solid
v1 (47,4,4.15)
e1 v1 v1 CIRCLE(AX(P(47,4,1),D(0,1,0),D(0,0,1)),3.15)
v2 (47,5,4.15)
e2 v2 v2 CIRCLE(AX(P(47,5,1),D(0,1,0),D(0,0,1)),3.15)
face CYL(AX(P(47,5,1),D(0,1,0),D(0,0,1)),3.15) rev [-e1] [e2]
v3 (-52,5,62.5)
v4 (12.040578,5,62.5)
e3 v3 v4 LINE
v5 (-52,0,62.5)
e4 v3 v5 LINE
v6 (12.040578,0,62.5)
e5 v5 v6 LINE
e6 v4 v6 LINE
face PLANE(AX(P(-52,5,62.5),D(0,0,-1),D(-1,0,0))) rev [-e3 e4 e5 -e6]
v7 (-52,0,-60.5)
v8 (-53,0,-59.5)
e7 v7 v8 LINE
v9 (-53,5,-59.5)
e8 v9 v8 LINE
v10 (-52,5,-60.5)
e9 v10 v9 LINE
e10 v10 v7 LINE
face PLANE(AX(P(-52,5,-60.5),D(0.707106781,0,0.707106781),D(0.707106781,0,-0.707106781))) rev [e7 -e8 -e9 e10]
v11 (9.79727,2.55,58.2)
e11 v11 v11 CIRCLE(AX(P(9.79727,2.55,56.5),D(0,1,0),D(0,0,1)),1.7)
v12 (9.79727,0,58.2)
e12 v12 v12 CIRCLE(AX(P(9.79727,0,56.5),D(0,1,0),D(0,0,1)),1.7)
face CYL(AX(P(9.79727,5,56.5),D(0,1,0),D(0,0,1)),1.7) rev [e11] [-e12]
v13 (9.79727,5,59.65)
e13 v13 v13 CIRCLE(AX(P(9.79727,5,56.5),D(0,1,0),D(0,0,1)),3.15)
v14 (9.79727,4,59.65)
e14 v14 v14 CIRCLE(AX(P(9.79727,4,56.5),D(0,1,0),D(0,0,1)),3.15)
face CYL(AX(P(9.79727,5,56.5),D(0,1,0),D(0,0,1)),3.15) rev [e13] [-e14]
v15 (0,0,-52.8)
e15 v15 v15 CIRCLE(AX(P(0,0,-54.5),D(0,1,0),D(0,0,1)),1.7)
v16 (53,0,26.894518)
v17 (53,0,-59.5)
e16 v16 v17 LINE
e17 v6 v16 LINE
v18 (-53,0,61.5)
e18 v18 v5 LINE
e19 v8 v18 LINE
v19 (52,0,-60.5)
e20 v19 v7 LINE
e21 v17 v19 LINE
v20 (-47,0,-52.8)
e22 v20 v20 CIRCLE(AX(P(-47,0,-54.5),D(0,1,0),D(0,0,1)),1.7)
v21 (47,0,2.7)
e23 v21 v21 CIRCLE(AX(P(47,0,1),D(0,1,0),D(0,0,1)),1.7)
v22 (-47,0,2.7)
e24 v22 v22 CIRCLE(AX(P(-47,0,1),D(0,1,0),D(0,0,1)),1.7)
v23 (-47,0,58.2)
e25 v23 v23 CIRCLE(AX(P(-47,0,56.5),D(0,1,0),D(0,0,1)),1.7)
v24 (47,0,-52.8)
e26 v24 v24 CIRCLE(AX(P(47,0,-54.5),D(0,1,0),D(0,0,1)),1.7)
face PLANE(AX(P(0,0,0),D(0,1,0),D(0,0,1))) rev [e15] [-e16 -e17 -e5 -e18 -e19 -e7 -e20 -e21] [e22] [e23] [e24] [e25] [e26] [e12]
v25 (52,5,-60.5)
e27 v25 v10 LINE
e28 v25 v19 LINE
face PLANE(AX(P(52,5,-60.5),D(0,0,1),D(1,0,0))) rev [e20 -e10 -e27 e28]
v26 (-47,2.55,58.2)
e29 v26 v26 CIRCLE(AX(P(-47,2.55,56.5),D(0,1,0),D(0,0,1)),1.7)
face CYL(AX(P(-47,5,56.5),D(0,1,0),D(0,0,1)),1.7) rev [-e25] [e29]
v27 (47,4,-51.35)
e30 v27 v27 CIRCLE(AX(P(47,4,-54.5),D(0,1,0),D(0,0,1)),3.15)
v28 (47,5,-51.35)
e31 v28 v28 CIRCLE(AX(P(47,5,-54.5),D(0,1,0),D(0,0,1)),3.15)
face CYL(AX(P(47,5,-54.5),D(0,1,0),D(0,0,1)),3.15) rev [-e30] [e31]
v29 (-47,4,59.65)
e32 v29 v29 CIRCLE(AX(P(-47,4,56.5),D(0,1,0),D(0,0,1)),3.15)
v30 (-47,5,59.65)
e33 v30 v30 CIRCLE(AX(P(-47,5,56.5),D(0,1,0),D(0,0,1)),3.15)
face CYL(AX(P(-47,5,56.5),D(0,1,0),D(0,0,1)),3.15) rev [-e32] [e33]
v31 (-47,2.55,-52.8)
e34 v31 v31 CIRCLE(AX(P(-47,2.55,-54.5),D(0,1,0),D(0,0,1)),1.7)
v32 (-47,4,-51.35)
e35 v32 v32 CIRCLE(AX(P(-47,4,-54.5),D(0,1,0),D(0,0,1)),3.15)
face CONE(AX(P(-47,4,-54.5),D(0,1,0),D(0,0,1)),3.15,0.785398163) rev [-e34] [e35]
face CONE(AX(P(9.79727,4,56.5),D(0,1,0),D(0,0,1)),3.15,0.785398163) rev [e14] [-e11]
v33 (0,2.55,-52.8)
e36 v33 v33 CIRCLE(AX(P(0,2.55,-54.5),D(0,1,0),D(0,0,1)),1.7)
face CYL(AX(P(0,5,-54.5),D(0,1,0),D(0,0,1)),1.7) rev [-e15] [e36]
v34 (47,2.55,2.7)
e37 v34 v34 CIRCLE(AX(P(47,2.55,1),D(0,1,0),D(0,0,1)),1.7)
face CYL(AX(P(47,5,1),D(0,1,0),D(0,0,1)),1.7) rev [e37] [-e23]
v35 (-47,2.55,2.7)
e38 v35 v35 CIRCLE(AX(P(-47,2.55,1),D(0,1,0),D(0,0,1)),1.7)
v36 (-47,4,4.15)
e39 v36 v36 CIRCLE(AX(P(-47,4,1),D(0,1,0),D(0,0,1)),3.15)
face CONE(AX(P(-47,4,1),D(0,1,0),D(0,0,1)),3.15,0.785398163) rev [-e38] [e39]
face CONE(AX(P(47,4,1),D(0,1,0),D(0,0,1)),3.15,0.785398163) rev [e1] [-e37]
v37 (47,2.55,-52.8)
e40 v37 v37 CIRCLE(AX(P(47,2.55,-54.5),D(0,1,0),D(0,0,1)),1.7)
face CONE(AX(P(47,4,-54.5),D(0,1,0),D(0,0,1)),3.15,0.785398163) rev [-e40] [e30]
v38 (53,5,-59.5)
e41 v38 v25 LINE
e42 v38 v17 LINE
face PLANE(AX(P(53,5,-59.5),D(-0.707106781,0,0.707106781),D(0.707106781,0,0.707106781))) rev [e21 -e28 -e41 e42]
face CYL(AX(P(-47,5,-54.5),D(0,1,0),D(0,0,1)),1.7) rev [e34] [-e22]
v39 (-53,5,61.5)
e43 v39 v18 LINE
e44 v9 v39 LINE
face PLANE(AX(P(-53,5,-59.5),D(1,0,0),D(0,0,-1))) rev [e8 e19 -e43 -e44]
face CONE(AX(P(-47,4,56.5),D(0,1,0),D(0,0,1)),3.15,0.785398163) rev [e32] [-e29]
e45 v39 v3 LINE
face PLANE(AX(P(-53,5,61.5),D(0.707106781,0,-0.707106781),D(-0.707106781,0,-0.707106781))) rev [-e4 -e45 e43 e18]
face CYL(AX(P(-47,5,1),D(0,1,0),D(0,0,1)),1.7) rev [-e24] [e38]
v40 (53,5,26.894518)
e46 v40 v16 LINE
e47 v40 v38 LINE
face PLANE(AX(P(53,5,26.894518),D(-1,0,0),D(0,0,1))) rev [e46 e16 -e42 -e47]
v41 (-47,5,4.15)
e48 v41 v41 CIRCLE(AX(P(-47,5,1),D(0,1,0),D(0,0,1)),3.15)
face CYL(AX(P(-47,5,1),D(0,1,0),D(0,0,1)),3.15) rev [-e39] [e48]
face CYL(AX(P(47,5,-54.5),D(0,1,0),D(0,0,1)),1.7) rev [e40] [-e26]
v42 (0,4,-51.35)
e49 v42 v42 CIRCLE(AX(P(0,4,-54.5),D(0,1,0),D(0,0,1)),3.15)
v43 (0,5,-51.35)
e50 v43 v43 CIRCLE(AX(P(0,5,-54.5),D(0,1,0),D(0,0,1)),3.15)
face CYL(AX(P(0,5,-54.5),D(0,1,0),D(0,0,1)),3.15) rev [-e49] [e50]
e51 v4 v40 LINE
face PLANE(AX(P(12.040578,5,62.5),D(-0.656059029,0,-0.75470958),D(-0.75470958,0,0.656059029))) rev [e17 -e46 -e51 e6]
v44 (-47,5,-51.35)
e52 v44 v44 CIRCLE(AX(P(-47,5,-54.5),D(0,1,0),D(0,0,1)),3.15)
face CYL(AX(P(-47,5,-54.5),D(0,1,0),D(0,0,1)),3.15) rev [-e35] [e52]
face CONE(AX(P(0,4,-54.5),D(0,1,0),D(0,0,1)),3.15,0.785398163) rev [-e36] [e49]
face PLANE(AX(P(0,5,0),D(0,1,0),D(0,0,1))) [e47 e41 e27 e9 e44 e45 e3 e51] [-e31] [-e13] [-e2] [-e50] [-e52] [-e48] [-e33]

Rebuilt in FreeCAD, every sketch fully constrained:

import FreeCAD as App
import Part
import Sketcher
from FreeCAD import Vector
Q = App.Units.Quantity


def add_polygon(sketch, points):
    """Adds a closed chain of lines whose ends are joined by coincident constraints."""
    first, n = sketch.GeometryCount, len(points)
    for a, b in zip(points, points[1:] + points[:1]):
        sketch.addGeometry(Part.LineSegment(App.Vector(*a, 0), App.Vector(*b, 0)), False)
    for i in range(n):
        sketch.addConstraint(Sketcher.Constraint("Coincident", first + i, 2, first + (i + 1) % n, 1))

doc = App.newDocument("Part")
body = doc.addObject("PartDesign::Body", "Body")

# Sketch on XZ plane
sketch1 = doc.addObject("Sketcher::SketchObject", "Sketch")
body.addObject(sketch1)
sketch1.AttachmentSupport = (doc.XZ_Plane, [""])
sketch1.MapMode = "FlatFace"
add_polygon(sketch1, [(52, -60.5), (-52, -60.5), (-53, -59.5), (-53, 61.5), (-52, 62.5), (12.040578, 62.5), (53, 26.894518), (53, -59.5)])  # lines 0-7
sketch1.addConstraint(Sketcher.Constraint("Horizontal", 0))
sketch1.addConstraint(Sketcher.Constraint("Vertical", 2))
sketch1.addConstraint(Sketcher.Constraint("Horizontal", 4))
sketch1.addConstraint(Sketcher.Constraint("Vertical", 6))
sketch1.addConstraint(Sketcher.Constraint("Symmetric", 1, 2, 6, 2, -2))
sketch1.addConstraint(Sketcher.Constraint("Perpendicular", 1, 3))
sketch1.addConstraint(Sketcher.Constraint("Parallel", 3, 7))
sketch1.addConstraint(Sketcher.Constraint("Vertical", 0, 2, 3, 2))
sketch1.addConstraint(Sketcher.Constraint("Equal", 1, 3))
sketch1.addConstraint(Sketcher.Constraint("DistanceX", 0, 2, 0, 1, Q("104 mm")))
sketch1.addConstraint(Sketcher.Constraint("DistanceY", 2, 1, 2, 2, Q("121 mm")))
sketch1.addConstraint(Sketcher.Constraint("Angle", 5, Q("-41 deg")))
sketch1.addConstraint(Sketcher.Constraint("DistanceX", 1, 2, -1, 1, Q("53 mm")))
sketch1.addConstraint(Sketcher.Constraint("DistanceY", 0, 2, -1, 1, Q("60.5 mm")))
sketch1.addConstraint(Sketcher.Constraint("DistanceX", 4, 1, 4, 2, Q("64.040578 mm")))
pad1 = doc.addObject("PartDesign::Pad", "Pad")
body.addObject(pad1)
pad1.Profile = sketch1
pad1.Length = 5
pad1.Reversed = True

# Sketch on YZ plane
sketch2 = doc.addObject("Sketcher::SketchObject", "Sketch001")
body.addObject(sketch2)
sketch2.AttachmentSupport = (doc.YZ_Plane, [""])
sketch2.MapMode = "FlatFace"
sketch2.AttachmentOffset = App.Placement(Vector(0, 0, -47), App.Rotation())
add_polygon(sketch2, [(0, -54.5), (5, -54.5), (5, -51.35), (4, -51.35), (2.55, -52.8), (0, -52.8)])  # lines 0-5
sketch2.addGeometry(Part.LineSegment(Vector(5, -54.5, 0), Vector(0, -54.5, 0)), True)  # axis
sketch2.addConstraint(Sketcher.Constraint("Horizontal", 0))
sketch2.addConstraint(Sketcher.Constraint("Vertical", 1))
sketch2.addConstraint(Sketcher.Constraint("Horizontal", 2))
sketch2.addConstraint(Sketcher.Constraint("Horizontal", 4))
sketch2.addConstraint(Sketcher.Constraint("Vertical", 5))
sketch2.addConstraint(Sketcher.Constraint("Horizontal", 6))
sketch2.addConstraint(Sketcher.Constraint("Coincident", 6, 1, 0, 2))
sketch2.addConstraint(Sketcher.Constraint("PointOnObject", 4, 2, -2))
sketch2.addConstraint(Sketcher.Constraint("PointOnObject", 6, 2, -2))
sketch2.addConstraint(Sketcher.Constraint("DistanceX", 0, 1, 0, 2, Q("5 mm")))
sketch2.addConstraint(Sketcher.Constraint("DistanceX", 2, 2, 2, 1, Q("1 mm")))
sketch2.addConstraint(Sketcher.Constraint("Angle", 3, Q("-135 deg")))
sketch2.addConstraint(Sketcher.Constraint("DistanceY", 5, 2, 5, 1, Q("1.7 mm")))
sketch2.addConstraint(Sketcher.Constraint("DistanceX", 4, 2, 4, 1, Q("2.55 mm")))
sketch2.addConstraint(Sketcher.Constraint("DistanceY", 0, 2, -1, 1, Q("54.5 mm")))
groove = doc.addObject("PartDesign::Groove", "Groove")
body.addObject(groove)
groove.Profile = sketch2
groove.ReferenceAxis = (sketch2, ["Axis0"])
groove.Angle = 360
doc.recompute()

linearpattern = doc.addObject("PartDesign::LinearPattern", "LinearPattern")
body.addObject(linearpattern)
linearpattern.Originals = [groove]
linearpattern.Direction = (doc.X_Axis, [""])
linearpattern.Mode = "offset"
linearpattern.Offset = 47
linearpattern.Occurrences = 2
body.Tip = linearpattern
doc.recompute()

linearpattern2 = doc.addObject("PartDesign::LinearPattern", "LinearPattern001")
body.addObject(linearpattern2)
linearpattern2.Originals = [groove]
linearpattern2.Direction = (doc.X_Axis, [""])
linearpattern2.Mode = "offset"
linearpattern2.Offset = 94
linearpattern2.Occurrences = 2
body.Tip = linearpattern2
doc.recompute()

datumline = doc.addObject("PartDesign::Line", "DatumLine")
body.addObject(datumline)
datumline.Placement = App.Placement(Vector(0, 0, 0), App.Rotation(Vector(0, 0, 1), Vector(0.861108846, 0, 0.508420648)))
linearpattern3 = doc.addObject("PartDesign::LinearPattern", "LinearPattern002")
body.addObject(linearpattern3)
linearpattern3.Originals = [groove]
linearpattern3.Direction = (datumline, [""])
linearpattern3.Mode = "offset"
linearpattern3.Offset = 109.161577
linearpattern3.Occurrences = 2
body.Tip = linearpattern3
doc.recompute()

datumline2 = doc.addObject("PartDesign::Line", "DatumLine001")
body.addObject(datumline2)
datumline2.Placement = App.Placement(Vector(0, 0, 0), App.Rotation(Vector(0, 0, 1), Vector(0.455517581, 0, 0.890226787)))
linearpattern4 = doc.addObject("PartDesign::LinearPattern", "LinearPattern003")
body.addObject(linearpattern4)
linearpattern4.Originals = [groove]
linearpattern4.Direction = (datumline2, [""])
linearpattern4.Mode = "offset"
linearpattern4.Offset = 124.687329
linearpattern4.Occurrences = 2
body.Tip = linearpattern4
doc.recompute()

linearpattern5 = doc.addObject("PartDesign::LinearPattern", "LinearPattern004")
body.addObject(linearpattern5)
linearpattern5.Originals = [groove]
linearpattern5.Direction = (doc.Z_Axis, [""])
linearpattern5.Mode = "offset"
linearpattern5.Offset = 111
linearpattern5.Occurrences = 2
body.Tip = linearpattern5
doc.recompute()

linearpattern6 = doc.addObject("PartDesign::LinearPattern", "LinearPattern005")
body.addObject(linearpattern6)
linearpattern6.Originals = [groove]
linearpattern6.Direction = (doc.Z_Axis, [""])
linearpattern6.Mode = "offset"
linearpattern6.Offset = 55.5
linearpattern6.Occurrences = 2
body.Tip = linearpattern6

doc.recompute()
